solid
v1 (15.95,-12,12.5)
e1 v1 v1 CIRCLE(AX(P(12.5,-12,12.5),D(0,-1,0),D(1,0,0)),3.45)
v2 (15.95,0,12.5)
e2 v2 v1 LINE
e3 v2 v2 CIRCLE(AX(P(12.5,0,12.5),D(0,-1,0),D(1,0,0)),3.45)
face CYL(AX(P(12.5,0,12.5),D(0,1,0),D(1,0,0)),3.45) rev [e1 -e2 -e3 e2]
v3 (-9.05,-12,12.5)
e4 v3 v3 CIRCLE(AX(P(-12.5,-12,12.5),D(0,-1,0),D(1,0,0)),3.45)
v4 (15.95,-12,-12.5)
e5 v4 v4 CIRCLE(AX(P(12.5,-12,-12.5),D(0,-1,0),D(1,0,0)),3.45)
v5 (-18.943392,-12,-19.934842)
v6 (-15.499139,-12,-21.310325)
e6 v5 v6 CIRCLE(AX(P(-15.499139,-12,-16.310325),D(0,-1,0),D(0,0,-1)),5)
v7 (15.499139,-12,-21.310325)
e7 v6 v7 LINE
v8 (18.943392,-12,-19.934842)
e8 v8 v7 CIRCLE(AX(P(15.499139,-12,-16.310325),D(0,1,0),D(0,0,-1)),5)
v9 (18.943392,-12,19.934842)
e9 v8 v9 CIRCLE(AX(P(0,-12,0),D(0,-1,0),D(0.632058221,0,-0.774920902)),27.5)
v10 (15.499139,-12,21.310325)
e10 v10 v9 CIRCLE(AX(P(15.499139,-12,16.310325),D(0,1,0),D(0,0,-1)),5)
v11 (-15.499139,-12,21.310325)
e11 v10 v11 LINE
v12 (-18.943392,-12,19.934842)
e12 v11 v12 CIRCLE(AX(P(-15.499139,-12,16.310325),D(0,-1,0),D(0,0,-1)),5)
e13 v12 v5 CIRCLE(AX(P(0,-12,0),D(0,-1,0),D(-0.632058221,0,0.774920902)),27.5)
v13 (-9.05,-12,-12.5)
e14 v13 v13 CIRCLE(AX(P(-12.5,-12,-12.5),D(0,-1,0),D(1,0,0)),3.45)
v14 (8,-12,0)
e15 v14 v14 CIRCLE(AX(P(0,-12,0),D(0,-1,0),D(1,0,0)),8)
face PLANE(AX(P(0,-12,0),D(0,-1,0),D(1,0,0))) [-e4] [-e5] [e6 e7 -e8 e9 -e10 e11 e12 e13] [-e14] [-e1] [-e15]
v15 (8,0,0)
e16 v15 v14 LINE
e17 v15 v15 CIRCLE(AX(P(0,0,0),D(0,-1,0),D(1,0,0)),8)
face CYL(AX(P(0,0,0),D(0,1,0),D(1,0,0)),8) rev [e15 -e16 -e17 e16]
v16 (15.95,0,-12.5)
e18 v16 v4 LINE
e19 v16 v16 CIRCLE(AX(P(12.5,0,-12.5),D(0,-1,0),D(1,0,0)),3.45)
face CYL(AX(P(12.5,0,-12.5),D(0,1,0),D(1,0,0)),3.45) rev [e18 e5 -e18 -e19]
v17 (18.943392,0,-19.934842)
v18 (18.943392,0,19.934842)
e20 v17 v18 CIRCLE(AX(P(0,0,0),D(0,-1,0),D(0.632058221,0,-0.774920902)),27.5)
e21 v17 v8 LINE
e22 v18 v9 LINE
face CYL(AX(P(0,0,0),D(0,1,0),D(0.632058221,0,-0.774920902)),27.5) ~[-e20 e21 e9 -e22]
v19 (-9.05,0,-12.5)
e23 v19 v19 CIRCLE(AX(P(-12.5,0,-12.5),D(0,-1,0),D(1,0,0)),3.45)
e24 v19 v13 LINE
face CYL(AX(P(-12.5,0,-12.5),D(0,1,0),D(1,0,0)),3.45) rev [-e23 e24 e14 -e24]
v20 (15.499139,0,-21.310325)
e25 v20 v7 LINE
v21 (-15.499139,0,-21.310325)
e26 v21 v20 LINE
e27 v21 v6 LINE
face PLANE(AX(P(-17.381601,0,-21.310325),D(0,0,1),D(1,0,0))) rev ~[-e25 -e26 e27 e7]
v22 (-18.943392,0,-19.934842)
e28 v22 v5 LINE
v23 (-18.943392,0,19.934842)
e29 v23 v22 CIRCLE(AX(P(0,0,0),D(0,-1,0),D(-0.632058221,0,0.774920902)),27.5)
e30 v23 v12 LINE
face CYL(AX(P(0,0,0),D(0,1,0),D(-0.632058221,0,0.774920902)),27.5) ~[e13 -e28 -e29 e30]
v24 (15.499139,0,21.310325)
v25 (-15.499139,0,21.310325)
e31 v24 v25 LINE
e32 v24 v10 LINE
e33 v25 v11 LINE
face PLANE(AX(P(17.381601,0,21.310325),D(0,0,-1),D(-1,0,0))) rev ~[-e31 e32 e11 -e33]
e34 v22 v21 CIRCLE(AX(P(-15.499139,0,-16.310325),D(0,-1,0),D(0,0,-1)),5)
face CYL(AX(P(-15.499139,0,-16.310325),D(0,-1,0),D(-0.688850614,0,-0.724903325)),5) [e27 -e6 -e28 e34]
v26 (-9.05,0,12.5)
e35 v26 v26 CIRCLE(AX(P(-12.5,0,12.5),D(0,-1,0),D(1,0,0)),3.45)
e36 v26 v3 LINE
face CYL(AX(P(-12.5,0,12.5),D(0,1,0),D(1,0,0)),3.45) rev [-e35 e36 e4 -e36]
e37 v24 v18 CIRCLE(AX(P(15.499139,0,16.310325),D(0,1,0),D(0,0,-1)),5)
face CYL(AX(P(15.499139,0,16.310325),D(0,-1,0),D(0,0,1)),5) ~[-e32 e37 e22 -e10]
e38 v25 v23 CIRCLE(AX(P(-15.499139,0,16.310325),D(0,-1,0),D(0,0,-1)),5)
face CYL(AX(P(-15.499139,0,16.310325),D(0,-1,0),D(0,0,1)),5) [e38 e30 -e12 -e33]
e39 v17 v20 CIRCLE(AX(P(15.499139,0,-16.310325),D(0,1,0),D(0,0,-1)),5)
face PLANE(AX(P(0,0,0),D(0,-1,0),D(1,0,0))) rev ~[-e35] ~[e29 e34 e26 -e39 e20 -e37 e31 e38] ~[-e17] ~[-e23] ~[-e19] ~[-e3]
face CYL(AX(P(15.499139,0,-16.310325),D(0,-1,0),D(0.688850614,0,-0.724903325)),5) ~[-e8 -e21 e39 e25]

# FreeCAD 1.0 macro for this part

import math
import FreeCAD as App
import Part
import Sketcher


def edges_at(feature, points):
    """Names of the edges that pass closest to the given points."""
    edges = feature.Shape.Edges
    near = lambda p: min(range(len(edges)), key=lambda i: edges[i].distToShape(Part.Vertex(*p))[0])
    return sorted({f"Edge{near(p) + 1}" for p in points})

doc = App.newDocument("Part")
body = doc.addObject("PartDesign::Body", "Body")

sketch1 = body.newObject("Sketcher::SketchObject", "Sketch")
sketch1.AttachmentSupport = (doc.getObject("XZ_Plane"), [""])
sketch1.MapMode = "FlatFace"
sketch1.addGeometry([
    Part.LineSegment(App.Vector(17.381601, 21.310325, 0), App.Vector(-17.381601, 21.310325, 0)),
    Part.ArcOfCircle(Part.Circle(App.Vector(0, 0, 0), App.Vector(0, 0, 1), 27.5), math.radians(129.202138), math.radians(230.797862)),
    Part.LineSegment(App.Vector(-17.381601, -21.310325, 0), App.Vector(17.381601, -21.310325, 0)),
    Part.ArcOfCircle(Part.Circle(App.Vector(0, 0, 0), App.Vector(0, 0, 1), 27.5), math.radians(-50.797862), math.radians(50.797862)),
    Part.Circle(App.Vector(-12.5, -12.5, 0), App.Vector(0, 0, 1), 3.45),
    Part.Circle(App.Vector(12.5, -12.5, 0), App.Vector(0, 0, 1), 3.45),
    Part.Circle(App.Vector(-12.5, 12.5, 0), App.Vector(0, 0, 1), 3.45),
    Part.Circle(App.Vector(0, 0, 0), App.Vector(0, 0, 1), 8),
    Part.Circle(App.Vector(12.5, 12.5, 0), App.Vector(0, 0, 1), 3.45),
], False)
sketch1.addConstraint([
    Sketcher.Constraint("Coincident", 0, 2, 1, 1),
    Sketcher.Constraint("Coincident", 1, 2, 2, 1),
    Sketcher.Constraint("Coincident", 2, 2, 3, 1),
    Sketcher.Constraint("Coincident", 3, 2, 0, 1),
    Sketcher.Constraint("Horizontal", 0),
    Sketcher.Constraint("Horizontal", 2),
    Sketcher.Constraint("Coincident", 1, 3, -1, 1),
    Sketcher.Constraint("Coincident", 3, 3, -1, 1),
    Sketcher.Constraint("Coincident", 7, 3, -1, 1),
    Sketcher.Constraint("Equal", 1, 3),
    Sketcher.Constraint("Equal", 4, 5),
    Sketcher.Constraint("Equal", 5, 6),
    Sketcher.Constraint("Equal", 6, 8),
    Sketcher.Constraint("Symmetric", 5, 3, 6, 3, -1, 1),
    Sketcher.Constraint("Symmetric", 4, 3, 8, 3, -1, 1),
    Sketcher.Constraint("Symmetric", 4, 3, 5, 3, -2),
    Sketcher.Constraint("Vertical", 0, 2, 1, 2),
    Sketcher.Constraint("Diameter", 7, 16.0),
    Sketcher.Constraint("Diameter", 4, 6.9),
    Sketcher.Constraint("Radius", 1, 27.5),
    Sketcher.Constraint("DistanceX", 4, 3, 5, 3, 25.0),
    Sketcher.Constraint("DistanceY", 4, 3, 6, 3, 25.0),
    Sketcher.Constraint("DistanceX", 0, 2, -1, 1, 17.381601),
])
pad1 = body.newObject("PartDesign::Pad", "Pad")
pad1.Profile = sketch1
pad1.Length = 12
doc.recompute()

fillet = body.newObject("PartDesign::Fillet", "Fillet")
fillet.Base = (pad1, edges_at(pad1, [
    (-17.382, -6, 21.31),
    (17.382, -6, 21.31),
    (17.382, -6, -21.31),
    (-17.382, -6, -21.31),
]))
fillet.Radius = 5

doc.recompute()
